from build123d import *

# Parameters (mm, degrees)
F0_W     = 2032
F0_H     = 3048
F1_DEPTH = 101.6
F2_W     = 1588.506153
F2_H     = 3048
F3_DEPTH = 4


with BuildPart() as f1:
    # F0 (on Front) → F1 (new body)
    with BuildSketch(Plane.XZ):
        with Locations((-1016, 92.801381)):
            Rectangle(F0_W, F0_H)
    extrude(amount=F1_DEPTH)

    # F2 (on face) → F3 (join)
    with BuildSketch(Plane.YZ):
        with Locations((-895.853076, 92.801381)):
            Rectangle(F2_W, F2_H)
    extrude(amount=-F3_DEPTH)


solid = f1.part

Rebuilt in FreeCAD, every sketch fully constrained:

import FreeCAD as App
import Part
import Sketcher
from FreeCAD import Vector
Q = App.Units.Quantity


def add_polygon(sketch, points):
    """Adds a closed chain of lines whose ends are joined by coincident constraints."""
    first, n = sketch.GeometryCount, len(points)
    for a, b in zip(points, points[1:] + points[:1]):
        sketch.addGeometry(Part.LineSegment(App.Vector(*a, 0), App.Vector(*b, 0)), False)
    for i in range(n):
        sketch.addConstraint(Sketcher.Constraint("Coincident", first + i, 2, first + (i + 1) % n, 1))

doc = App.newDocument("Part")
body = doc.addObject("PartDesign::Body", "Body")

sketch1 = doc.addObject("Sketcher::SketchObject", "Sketch")
body.addObject(sketch1)
sketch1.AttachmentSupport = (doc.XZ_Plane, [""])
sketch1.MapMode = "FlatFace"
add_polygon(sketch1, [(-2032, 1617), (-2032, -1431), (0, -1431), (0, 1617)])
sketch1.addConstraint([
    Sketcher.Constraint("Vertical", 0),
    Sketcher.Constraint("Horizontal", 1),
    Sketcher.Constraint("Vertical", 2),
    Sketcher.Constraint("Horizontal", 3),
    Sketcher.Constraint("PointOnObject", 1, 2, -2),
    Sketcher.Constraint("DistanceX", 1, 1, 1, 2, Q("80 in")),
    Sketcher.Constraint("DistanceY", 0, 2, 0, 1, Q("120 in")),
    Sketcher.Constraint("DistanceY", 0, 2, -1, 1, Q("1431.198619 mm")),
])
pad1 = doc.addObject("PartDesign::Pad", "Pad")
body.addObject(pad1)
pad1.Profile = sketch1
pad1.Length = Q("4 in")

sketch2 = doc.addObject("Sketcher::SketchObject", "Sketch001")
body.addObject(sketch2)
sketch2.AttachmentSupport = (doc.YZ_Plane, [""])
sketch2.MapMode = "FlatFace"
add_polygon(sketch2, [(-1690, 1617), (-1690, -1431), (-102, -1431), (-102, 1617)])
sketch2.addConstraint([
    Sketcher.Constraint("Vertical", 0),
    Sketcher.Constraint("Horizontal", 1),
    Sketcher.Constraint("Vertical", 2),
    Sketcher.Constraint("Horizontal", 3),
    Sketcher.Constraint("DistanceY", 0, 2, 0, 1, Q("120 in")),
    Sketcher.Constraint("DistanceX", 1, 2, -1, 1, Q("4 in")),
    Sketcher.Constraint("DistanceX", 1, 1, 1, 2, Q("1588.506153 mm")),
    Sketcher.Constraint("DistanceY", 0, 2, -1, 1, Q("1431.198619 mm")),
])
pad2 = doc.addObject("PartDesign::Pad", "Pad001")
body.addObject(pad2)
pad2.Profile = sketch2
pad2.Length = 4
pad2.Reversed = True

doc.recompute()
